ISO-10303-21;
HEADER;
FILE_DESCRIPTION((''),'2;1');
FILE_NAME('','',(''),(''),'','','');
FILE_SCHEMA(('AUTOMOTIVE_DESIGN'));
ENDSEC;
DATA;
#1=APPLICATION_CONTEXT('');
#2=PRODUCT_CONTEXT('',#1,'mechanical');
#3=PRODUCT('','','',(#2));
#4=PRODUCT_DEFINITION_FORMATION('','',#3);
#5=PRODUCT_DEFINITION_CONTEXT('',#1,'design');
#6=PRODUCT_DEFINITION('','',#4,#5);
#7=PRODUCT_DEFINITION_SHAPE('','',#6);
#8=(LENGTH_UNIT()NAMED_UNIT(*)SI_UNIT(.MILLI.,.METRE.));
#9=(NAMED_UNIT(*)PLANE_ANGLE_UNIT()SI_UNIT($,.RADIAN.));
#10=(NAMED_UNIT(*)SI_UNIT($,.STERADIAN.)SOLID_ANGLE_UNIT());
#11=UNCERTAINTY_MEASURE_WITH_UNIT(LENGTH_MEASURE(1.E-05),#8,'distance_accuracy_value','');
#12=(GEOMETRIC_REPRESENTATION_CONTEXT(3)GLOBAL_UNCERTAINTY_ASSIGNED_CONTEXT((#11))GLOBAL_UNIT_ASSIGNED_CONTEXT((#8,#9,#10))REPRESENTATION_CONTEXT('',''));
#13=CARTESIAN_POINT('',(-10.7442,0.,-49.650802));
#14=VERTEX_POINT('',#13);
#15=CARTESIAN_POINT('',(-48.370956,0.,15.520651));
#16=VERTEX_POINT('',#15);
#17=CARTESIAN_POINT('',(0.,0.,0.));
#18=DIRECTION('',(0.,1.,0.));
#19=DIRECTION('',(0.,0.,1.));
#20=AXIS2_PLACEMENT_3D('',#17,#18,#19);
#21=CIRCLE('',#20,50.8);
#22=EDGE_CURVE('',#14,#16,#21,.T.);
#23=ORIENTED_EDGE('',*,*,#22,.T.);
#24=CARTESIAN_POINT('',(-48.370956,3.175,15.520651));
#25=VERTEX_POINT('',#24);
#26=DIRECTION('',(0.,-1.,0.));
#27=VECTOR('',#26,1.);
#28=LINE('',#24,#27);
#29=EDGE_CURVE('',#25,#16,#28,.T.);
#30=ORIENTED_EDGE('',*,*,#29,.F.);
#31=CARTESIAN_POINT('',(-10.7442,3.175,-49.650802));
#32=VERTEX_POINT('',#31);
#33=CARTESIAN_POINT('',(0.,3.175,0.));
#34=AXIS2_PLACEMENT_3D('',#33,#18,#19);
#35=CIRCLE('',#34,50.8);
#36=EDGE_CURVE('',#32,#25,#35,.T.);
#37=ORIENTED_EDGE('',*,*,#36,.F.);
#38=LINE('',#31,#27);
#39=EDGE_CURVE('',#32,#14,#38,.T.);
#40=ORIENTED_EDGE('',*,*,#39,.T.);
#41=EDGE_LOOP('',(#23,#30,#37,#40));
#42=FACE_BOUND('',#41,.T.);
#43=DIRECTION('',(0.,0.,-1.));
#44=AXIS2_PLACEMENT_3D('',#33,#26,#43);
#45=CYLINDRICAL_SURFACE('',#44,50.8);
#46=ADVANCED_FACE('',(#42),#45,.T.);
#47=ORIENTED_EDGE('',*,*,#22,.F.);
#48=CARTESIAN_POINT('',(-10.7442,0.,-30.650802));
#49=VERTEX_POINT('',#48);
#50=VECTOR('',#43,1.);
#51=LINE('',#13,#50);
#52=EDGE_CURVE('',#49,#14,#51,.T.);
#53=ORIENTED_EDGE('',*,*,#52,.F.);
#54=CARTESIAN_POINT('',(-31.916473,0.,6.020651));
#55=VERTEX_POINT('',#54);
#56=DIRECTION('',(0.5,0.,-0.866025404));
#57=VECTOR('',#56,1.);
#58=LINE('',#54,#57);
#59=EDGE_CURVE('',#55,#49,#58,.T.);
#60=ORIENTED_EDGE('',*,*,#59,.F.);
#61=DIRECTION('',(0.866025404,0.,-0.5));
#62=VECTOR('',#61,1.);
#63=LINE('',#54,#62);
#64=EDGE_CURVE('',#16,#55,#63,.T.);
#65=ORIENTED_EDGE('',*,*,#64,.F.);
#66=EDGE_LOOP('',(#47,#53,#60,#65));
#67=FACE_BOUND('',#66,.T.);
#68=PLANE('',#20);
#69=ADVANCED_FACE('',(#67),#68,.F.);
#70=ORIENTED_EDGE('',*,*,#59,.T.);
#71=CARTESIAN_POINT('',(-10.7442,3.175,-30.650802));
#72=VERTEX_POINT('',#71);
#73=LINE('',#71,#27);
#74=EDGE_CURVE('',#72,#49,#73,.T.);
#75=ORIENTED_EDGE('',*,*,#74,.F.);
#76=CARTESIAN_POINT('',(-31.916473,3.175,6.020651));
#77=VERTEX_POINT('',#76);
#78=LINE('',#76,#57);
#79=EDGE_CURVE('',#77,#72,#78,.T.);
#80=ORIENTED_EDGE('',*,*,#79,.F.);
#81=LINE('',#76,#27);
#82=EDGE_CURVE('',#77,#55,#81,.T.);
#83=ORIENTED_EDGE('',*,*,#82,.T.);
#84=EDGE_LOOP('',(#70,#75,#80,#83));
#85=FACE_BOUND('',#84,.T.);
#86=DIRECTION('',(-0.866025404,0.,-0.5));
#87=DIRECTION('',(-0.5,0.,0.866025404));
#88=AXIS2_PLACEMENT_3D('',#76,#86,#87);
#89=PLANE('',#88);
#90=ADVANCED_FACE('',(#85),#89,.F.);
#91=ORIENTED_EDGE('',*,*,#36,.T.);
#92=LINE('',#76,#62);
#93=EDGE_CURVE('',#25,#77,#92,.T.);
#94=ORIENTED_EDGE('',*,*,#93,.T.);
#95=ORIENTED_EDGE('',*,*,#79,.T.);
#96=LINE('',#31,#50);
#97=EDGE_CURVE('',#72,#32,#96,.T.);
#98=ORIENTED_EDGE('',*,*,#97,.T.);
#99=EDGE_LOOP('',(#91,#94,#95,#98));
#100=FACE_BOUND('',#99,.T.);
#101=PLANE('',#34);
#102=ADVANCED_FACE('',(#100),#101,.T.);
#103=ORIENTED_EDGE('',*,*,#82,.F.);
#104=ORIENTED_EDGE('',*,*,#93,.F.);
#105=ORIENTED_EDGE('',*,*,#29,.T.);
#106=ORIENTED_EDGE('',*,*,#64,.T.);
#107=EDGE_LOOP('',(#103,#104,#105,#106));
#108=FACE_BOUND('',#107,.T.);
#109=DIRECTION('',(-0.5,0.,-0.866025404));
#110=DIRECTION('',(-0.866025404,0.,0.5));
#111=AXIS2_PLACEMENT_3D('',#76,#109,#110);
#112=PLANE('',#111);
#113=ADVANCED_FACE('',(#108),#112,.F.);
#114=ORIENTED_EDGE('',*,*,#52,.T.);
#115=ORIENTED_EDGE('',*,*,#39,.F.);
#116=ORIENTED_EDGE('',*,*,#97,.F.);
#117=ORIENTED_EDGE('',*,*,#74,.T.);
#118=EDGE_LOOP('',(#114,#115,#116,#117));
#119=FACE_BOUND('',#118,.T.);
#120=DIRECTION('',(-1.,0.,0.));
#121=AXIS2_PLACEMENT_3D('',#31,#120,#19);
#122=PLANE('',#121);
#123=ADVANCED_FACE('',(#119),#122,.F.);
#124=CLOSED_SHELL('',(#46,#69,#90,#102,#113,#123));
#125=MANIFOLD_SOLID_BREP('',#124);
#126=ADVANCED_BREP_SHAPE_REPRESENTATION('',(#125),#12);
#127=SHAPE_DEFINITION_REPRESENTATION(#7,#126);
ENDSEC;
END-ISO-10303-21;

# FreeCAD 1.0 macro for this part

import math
import FreeCAD as App
import Part
import Sketcher
from FreeCAD import Vector
Q = App.Units.Quantity

doc = App.newDocument("Part")
body = doc.addObject("PartDesign::Body", "Body")

# Sketch on XZ plane
sketch1 = body.newObject("Sketcher::SketchObject", "Sketch")
sketch1.AttachmentSupport = (doc.getObject("XZ_Plane"), [""])
sketch1.MapMode = "FlatFace"
sketch1.addGeometry([
    Part.LineSegment(Vector(-10.7442, -30.650802, 0), Vector(-10.7442, -49.650802, 0)),
    Part.ArcOfCircle(Part.Circle(Vector(0, 0, 0), Vector(0, 0, 1), 50.8), math.radians(162.210271), math.radians(257.789729)),
    Part.LineSegment(Vector(-48.370956, 15.520651, 0), Vector(-31.916473, 6.020651, 0)),
    Part.LineSegment(Vector(-31.916473, 6.020651, 0), Vector(-10.7442, -30.650802, 0)),
], False)
sketch1.addConstraint([
    Sketcher.Constraint("Coincident", 0, 2, 1, 2),
    Sketcher.Constraint("Coincident", 1, 1, 2, 1),
    Sketcher.Constraint("Coincident", 2, 2, 3, 1),
    Sketcher.Constraint("Coincident", 3, 2, 0, 1),
    Sketcher.Constraint("Vertical", 0),
    Sketcher.Constraint("Coincident", 1, 3, -1, 1),
    Sketcher.Constraint("Radius", 1, Q("2 in")),
    Sketcher.Constraint("Angle", 2, Q("-30 deg")),
    Sketcher.Constraint("Angle", 3, Q("-60 deg")),
    Sketcher.Constraint("DistanceX", 0, 2, -1, 1, Q("0.423 in")),
    Sketcher.Constraint("DistanceY", 0, 2, 0, 1, Q("19 mm")),
    Sketcher.Constraint("Distance", 2, Q("19 mm")),
])
pad1 = body.newObject("PartDesign::Pad", "Pad")
pad1.Profile = sketch1
pad1.Length = Q("0.125 in")
pad1.Reversed = True

doc.recompute()
